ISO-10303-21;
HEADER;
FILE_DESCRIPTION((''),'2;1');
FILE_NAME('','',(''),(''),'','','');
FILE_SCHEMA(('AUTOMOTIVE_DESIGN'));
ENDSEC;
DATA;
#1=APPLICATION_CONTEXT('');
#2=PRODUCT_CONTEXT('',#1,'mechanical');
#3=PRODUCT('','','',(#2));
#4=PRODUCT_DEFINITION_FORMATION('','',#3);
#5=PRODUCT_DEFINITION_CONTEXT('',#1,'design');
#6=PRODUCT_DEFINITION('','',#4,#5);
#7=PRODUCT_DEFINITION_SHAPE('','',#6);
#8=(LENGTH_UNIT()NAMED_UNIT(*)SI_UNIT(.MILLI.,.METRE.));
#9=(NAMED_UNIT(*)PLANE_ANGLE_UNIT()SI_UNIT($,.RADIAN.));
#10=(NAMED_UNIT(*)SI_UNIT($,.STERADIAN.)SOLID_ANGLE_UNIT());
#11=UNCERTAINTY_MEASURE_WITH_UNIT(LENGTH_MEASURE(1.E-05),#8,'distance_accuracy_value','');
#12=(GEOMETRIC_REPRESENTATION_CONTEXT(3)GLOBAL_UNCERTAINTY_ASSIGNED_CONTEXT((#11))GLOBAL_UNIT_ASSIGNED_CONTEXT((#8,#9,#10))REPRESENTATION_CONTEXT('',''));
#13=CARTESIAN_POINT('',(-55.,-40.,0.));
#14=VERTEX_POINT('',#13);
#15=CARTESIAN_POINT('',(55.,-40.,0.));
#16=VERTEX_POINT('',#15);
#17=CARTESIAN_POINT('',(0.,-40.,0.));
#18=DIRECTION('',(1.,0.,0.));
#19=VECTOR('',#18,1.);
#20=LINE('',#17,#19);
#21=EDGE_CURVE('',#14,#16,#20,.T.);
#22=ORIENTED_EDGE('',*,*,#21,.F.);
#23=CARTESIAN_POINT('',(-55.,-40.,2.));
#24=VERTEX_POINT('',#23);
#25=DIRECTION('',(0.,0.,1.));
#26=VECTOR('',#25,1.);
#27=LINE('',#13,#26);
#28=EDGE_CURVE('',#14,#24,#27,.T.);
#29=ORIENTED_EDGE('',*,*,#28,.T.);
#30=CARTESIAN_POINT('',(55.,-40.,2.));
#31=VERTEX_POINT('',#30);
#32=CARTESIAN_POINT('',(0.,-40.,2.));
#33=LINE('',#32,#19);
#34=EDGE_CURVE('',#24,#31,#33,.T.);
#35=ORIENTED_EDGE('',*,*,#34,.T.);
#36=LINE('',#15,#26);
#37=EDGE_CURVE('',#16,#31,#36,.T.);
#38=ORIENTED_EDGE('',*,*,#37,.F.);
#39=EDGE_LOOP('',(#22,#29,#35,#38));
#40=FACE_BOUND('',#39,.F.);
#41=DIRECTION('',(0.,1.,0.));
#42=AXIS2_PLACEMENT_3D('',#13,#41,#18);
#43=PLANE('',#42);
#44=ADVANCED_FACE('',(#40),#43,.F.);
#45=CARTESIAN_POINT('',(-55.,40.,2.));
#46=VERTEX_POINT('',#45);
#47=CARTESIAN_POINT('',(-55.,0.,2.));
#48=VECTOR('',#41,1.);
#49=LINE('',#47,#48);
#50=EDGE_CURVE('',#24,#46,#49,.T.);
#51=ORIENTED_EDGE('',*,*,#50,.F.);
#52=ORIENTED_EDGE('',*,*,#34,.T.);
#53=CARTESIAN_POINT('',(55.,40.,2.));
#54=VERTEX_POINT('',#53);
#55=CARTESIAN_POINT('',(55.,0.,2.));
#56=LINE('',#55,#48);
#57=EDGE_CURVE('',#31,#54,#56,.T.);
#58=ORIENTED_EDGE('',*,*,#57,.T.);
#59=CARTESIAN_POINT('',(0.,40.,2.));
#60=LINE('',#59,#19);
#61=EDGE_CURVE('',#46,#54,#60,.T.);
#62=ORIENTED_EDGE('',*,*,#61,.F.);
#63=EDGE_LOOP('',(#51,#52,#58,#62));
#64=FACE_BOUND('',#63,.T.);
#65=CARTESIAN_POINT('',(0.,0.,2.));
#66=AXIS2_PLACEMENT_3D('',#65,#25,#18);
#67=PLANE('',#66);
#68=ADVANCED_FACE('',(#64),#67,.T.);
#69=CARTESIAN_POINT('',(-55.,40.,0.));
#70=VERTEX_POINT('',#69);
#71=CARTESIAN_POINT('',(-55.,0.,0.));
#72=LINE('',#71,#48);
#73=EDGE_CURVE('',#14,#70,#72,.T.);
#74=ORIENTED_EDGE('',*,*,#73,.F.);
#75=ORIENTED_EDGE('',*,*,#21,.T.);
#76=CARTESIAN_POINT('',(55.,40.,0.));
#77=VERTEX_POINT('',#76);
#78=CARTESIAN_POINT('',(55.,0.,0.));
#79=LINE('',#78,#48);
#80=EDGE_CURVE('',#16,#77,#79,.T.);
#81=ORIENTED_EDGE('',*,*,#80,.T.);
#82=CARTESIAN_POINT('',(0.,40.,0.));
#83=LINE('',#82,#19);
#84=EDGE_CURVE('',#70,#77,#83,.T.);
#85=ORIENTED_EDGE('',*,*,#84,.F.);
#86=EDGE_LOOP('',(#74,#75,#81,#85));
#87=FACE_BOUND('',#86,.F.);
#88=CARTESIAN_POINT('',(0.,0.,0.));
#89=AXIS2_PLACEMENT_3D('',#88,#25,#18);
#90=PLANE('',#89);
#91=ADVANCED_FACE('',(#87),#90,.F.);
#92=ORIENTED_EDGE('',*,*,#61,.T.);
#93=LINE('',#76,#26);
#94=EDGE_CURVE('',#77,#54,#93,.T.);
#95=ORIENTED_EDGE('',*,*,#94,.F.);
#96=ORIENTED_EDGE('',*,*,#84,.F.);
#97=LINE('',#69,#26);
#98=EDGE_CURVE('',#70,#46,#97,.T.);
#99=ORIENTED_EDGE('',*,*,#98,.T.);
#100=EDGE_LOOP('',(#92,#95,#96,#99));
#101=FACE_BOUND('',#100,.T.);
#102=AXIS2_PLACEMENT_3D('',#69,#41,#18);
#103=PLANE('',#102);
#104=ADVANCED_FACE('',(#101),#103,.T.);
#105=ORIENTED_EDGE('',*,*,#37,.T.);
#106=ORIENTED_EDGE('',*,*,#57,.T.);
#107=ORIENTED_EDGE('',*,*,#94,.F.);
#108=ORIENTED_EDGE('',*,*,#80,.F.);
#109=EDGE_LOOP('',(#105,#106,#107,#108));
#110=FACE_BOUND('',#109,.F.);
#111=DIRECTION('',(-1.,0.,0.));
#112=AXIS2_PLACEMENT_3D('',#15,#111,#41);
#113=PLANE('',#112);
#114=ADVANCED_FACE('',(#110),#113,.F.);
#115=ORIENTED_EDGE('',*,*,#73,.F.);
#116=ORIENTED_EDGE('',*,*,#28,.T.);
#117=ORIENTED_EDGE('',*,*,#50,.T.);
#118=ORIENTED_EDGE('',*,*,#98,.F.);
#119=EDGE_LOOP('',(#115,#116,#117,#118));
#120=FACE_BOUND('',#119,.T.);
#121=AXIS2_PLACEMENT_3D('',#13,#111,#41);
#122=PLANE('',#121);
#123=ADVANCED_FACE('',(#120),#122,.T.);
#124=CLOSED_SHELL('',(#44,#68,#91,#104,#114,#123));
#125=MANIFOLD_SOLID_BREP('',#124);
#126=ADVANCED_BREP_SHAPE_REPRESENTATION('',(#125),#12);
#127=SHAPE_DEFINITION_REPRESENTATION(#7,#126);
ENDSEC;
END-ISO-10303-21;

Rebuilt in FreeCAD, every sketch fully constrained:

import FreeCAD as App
import Part
import Sketcher

V = App.Vector

doc = App.newDocument("Part")
body = doc.addObject("PartDesign::Body", "Body")

sketch1 = body.newObject("Sketcher::SketchObject", "Sketch")
sketch1.AttachmentSupport = (doc.getObject("XY_Plane"), [""])
sketch1.MapMode = "FlatFace"
sketch1.addGeometry([
    Part.LineSegment(V(-55, 40, 0), V(-55, -40, 0)),
    Part.LineSegment(V(-55, -40, 0), V(55, -40, 0)),
    Part.LineSegment(V(55, -40, 0), V(55, 40, 0)),
    Part.LineSegment(V(55, 40, 0), V(-55, 40, 0)),
], False)
sketch1.addConstraint([
    Sketcher.Constraint("Coincident", 0, 2, 1, 1),
    Sketcher.Constraint("Coincident", 1, 2, 2, 1),
    Sketcher.Constraint("Coincident", 2, 2, 3, 1),
    Sketcher.Constraint("Coincident", 3, 2, 0, 1),
    Sketcher.Constraint("Vertical", 0),
    Sketcher.Constraint("Horizontal", 1),
    Sketcher.Constraint("Vertical", 2),
    Sketcher.Constraint("Horizontal", 3),
    Sketcher.Constraint("Symmetric", 0, 2, 2, 2, -1, 1),
    Sketcher.Constraint("DistanceX", 1, 1, 1, 2, 110.0),
    Sketcher.Constraint("DistanceY", 0, 2, 0, 1, 80.0),
])
pad1 = body.newObject("PartDesign::Pad", "Pad")
pad1.Profile = sketch1
pad1.Length = 2

doc.recompute()
